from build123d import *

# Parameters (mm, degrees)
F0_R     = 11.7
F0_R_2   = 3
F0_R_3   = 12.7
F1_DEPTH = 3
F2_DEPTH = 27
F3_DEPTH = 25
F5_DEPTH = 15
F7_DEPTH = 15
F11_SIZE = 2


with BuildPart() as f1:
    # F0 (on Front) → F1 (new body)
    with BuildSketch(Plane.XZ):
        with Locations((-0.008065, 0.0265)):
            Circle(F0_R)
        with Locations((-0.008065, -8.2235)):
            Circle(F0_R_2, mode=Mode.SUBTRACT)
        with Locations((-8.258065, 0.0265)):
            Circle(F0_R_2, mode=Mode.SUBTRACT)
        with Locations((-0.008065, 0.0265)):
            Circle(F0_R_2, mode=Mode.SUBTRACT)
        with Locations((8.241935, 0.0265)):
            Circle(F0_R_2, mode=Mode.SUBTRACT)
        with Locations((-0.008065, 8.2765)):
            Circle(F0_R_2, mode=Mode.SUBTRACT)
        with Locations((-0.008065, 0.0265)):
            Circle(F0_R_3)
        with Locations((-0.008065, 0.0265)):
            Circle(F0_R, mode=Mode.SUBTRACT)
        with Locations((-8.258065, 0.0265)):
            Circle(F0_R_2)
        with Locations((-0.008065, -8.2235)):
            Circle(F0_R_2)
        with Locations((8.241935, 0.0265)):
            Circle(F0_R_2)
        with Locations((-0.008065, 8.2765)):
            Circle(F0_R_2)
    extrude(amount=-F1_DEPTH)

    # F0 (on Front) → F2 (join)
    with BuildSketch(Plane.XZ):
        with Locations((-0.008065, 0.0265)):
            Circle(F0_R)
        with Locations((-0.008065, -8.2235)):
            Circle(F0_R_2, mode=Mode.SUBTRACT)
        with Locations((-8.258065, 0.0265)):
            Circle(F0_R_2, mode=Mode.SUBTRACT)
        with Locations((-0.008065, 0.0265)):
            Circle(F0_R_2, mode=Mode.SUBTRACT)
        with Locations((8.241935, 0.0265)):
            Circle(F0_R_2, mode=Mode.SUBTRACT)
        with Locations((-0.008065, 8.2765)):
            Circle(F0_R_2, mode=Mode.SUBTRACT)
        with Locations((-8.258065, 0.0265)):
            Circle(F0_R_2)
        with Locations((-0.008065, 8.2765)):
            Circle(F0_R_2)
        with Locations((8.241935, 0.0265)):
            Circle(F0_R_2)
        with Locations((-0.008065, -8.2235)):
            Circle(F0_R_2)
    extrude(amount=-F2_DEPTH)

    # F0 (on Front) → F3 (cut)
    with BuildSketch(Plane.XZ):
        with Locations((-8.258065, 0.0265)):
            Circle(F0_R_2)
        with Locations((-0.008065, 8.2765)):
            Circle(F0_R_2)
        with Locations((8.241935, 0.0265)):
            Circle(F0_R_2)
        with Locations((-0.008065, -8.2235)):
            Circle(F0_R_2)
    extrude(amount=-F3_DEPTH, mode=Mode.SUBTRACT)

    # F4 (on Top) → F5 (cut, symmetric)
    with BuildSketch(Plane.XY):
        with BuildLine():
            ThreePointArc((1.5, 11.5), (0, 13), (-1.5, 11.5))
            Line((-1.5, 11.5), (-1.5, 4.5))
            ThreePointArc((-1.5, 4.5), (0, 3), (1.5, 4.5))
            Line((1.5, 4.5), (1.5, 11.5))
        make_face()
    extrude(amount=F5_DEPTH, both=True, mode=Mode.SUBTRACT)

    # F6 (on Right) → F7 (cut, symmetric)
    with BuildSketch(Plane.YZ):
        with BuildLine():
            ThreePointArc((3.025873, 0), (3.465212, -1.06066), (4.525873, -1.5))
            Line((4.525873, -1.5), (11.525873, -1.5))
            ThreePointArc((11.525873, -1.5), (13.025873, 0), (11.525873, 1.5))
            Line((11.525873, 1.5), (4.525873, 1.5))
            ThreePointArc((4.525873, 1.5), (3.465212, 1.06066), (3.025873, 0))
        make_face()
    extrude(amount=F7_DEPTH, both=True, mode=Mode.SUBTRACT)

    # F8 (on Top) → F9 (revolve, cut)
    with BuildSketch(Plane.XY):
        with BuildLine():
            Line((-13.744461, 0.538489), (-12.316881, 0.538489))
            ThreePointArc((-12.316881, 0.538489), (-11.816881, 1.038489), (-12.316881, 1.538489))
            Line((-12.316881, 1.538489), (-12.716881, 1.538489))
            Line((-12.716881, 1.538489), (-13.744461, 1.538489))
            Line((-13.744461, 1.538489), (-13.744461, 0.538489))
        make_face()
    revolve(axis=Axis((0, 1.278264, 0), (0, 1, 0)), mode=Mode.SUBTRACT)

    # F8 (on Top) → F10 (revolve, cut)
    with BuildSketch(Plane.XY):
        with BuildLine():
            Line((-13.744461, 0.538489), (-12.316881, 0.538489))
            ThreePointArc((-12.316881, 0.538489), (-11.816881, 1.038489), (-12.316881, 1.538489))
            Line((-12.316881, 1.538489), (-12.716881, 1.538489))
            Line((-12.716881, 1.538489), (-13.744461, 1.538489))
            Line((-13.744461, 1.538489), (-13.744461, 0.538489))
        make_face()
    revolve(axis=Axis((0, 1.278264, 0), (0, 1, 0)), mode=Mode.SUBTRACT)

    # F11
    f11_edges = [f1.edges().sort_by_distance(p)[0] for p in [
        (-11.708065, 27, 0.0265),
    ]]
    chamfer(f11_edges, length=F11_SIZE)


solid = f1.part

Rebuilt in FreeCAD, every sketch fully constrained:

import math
import FreeCAD as App
import Part
import Sketcher
from FreeCAD import Vector


def edges_at(feature, points):
    """Names of the edges that pass closest to the given points."""
    edges = feature.Shape.Edges
    near = lambda p: min(range(len(edges)), key=lambda i: edges[i].distToShape(Part.Vertex(*p))[0])
    return sorted({f"Edge{near(p) + 1}" for p in points})

doc = App.newDocument("Part")
body = doc.addObject("PartDesign::Body", "Body")
body.AllowCompound = True

sketch1 = doc.addObject("Sketcher::SketchObject", "Sketch")
body.addObject(sketch1)
sketch1.AttachmentSupport = (doc.XZ_Plane, [""])
sketch1.MapMode = "FlatFace"
sketch1.addGeometry(Part.Circle(Vector(0, 0, 0), Vector(0, 0, 1), 12.7), False)
sketch1.addGeometry(Part.Circle(Vector(0, 0, 0), Vector(0, 0, 1), 11.7), False)
sketch1.addGeometry(Part.Circle(Vector(-8.3, 0, 0), Vector(0, 0, 1), 3), False)
sketch1.addGeometry(Part.Circle(Vector(0, -8.2, 0), Vector(0, 0, 1), 3), False)
sketch1.addGeometry(Part.Circle(Vector(8.2, 0, 0), Vector(0, 0, 1), 3), False)
sketch1.addGeometry(Part.Circle(Vector(0, 8.3, 0), Vector(0, 0, 1), 3), False)
sketch1.addConstraint(Sketcher.Constraint("Coincident", 1, 3, 0, 3))
sketch1.addConstraint(Sketcher.Constraint("Equal", 2, 3))
sketch1.addConstraint(Sketcher.Constraint("Equal", 3, 4))
sketch1.addConstraint(Sketcher.Constraint("Equal", 4, 5))
sketch1.addConstraint(Sketcher.Constraint("Horizontal", 1, 3, 2, 3))
sketch1.addConstraint(Sketcher.Constraint("Horizontal", 2, 3, 4, 3))
sketch1.addConstraint(Sketcher.Constraint("Vertical", 1, 3, 3, 3))
sketch1.addConstraint(Sketcher.Constraint("Vertical", 3, 3, 5, 3))
sketch1.addConstraint(Sketcher.Constraint("Diameter", 2, 6.0))
sketch1.addConstraint(Sketcher.Constraint("Diameter", 0, 25.4))
sketch1.addConstraint(Sketcher.Constraint("Diameter", 1, 23.4))
sketch1.addConstraint(Sketcher.Constraint("DistanceX", 2, 3, 4, 3, 16.5))
sketch1.addConstraint(Sketcher.Constraint("DistanceY", 3, 3, 5, 3, 16.5))
sketch1.addConstraint(Sketcher.Constraint("DistanceX", 2, 3, 0, 3, 8.25))
sketch1.addConstraint(Sketcher.Constraint("DistanceY", 3, 3, 0, 3, 8.25))
sketch1.addConstraint(Sketcher.Constraint("DistanceY", -1, 1, 0, 3, 0.0265))
sketch1.addConstraint(Sketcher.Constraint("DistanceX", 0, 3, -1, 1, 0.008065))
pad1 = doc.addObject("PartDesign::Pad", "Pad")
body.addObject(pad1)
pad1.Profile = sketch1
pad1.Length = 3
pad1.Reversed = True

sketch2 = doc.addObject("Sketcher::SketchObject", "Sketch001")
body.addObject(sketch2)
sketch2.AttachmentSupport = (doc.XZ_Plane, [""])
sketch2.MapMode = "FlatFace"
sketch2.addGeometry(Part.Circle(Vector(0, 0, 0), Vector(0, 0, 1), 11.7), False)
sketch2.addGeometry(Part.Circle(Vector(0, 0, 0), Vector(0, 0, 1), 3), False)
sketch2.addConstraint(Sketcher.Constraint("Coincident", 1, 3, 0, 3))
sketch2.addConstraint(Sketcher.Constraint("Diameter", 1, 6.0))
sketch2.addConstraint(Sketcher.Constraint("Diameter", 0, 23.4))
sketch2.addConstraint(Sketcher.Constraint("DistanceY", -1, 1, 0, 3, 0.0265))
sketch2.addConstraint(Sketcher.Constraint("DistanceX", 0, 3, -1, 1, 0.008065))
pad2 = doc.addObject("PartDesign::Pad", "Pad001")
body.addObject(pad2)
pad2.Profile = sketch2
pad2.Length = 27
pad2.Reversed = True

sketch3 = doc.addObject("Sketcher::SketchObject", "Sketch002")
body.addObject(sketch3)
sketch3.AttachmentSupport = (doc.XZ_Plane, [""])
sketch3.MapMode = "FlatFace"
sketch3.addGeometry(Part.Circle(Vector(-8.3, 0, 0), Vector(0, 0, 1), 3), False)
sketch3.addGeometry(Part.Circle(Vector(0, 8.3, 0), Vector(0, 0, 1), 3), False)
sketch3.addGeometry(Part.Circle(Vector(8.2, 0, 0), Vector(0, 0, 1), 3), False)
sketch3.addGeometry(Part.Circle(Vector(0, -8.2, 0), Vector(0, 0, 1), 3), False)
sketch3.addConstraint(Sketcher.Constraint("Equal", 0, 1))
sketch3.addConstraint(Sketcher.Constraint("Equal", 1, 2))
sketch3.addConstraint(Sketcher.Constraint("Equal", 2, 3))
sketch3.addConstraint(Sketcher.Constraint("Horizontal", 0, 3, 2, 3))
sketch3.addConstraint(Sketcher.Constraint("Vertical", 1, 3, 3, 3))
sketch3.addConstraint(Sketcher.Constraint("Diameter", 0, 6.0))
sketch3.addConstraint(Sketcher.Constraint("DistanceX", 0, 3, 2, 3, 16.5))
sketch3.addConstraint(Sketcher.Constraint("DistanceY", 3, 3, 1, 3, 16.5))
sketch3.addConstraint(Sketcher.Constraint("DistanceX", 0, 3, 1, 3, 8.25))
sketch3.addConstraint(Sketcher.Constraint("DistanceY", 0, 3, 1, 3, 8.25))
sketch3.addConstraint(Sketcher.Constraint("DistanceY", -1, 1, 0, 3, 0.0265))
sketch3.addConstraint(Sketcher.Constraint("DistanceX", 0, 3, -1, 1, 8.258065))
pocket1 = doc.addObject("PartDesign::Pocket", "Pocket")
body.addObject(pocket1)
pocket1.Profile = sketch3
pocket1.Length = 25

sketch4 = doc.addObject("Sketcher::SketchObject", "Sketch003")
body.addObject(sketch4)
sketch4.AttachmentSupport = (doc.XY_Plane, [""])
sketch4.MapMode = "FlatFace"
sketch4.addGeometry(Part.ArcOfCircle(Part.Circle(Vector(0, 11.5, 0), Vector(0, 0, 1), 1.5), math.radians(0), math.radians(180)), False)
sketch4.addGeometry(Part.LineSegment(Vector(-1.5, 11.5, 0), Vector(-1.5, 4.5, 0)), False)
sketch4.addGeometry(Part.ArcOfCircle(Part.Circle(Vector(0, 4.5, 0), Vector(0, 0, 1), 1.5), math.radians(180), math.radians(360)), False)
sketch4.addGeometry(Part.LineSegment(Vector(1.5, 4.5, 0), Vector(1.5, 11.5, 0)), False)
sketch4.addConstraint(Sketcher.Constraint("Tangent", 0, 2, 1, 1))
sketch4.addConstraint(Sketcher.Constraint("Tangent", 1, 2, 2, 1))
sketch4.addConstraint(Sketcher.Constraint("Tangent", 2, 2, 3, 1))
sketch4.addConstraint(Sketcher.Constraint("Tangent", 3, 2, 0, 1))
sketch4.addConstraint(Sketcher.Constraint("Vertical", 1))
sketch4.addConstraint(Sketcher.Constraint("Vertical", 3))
sketch4.addConstraint(Sketcher.Constraint("PointOnObject", 0, 3, -2))
sketch4.addConstraint(Sketcher.Constraint("Radius", 0, 1.5))
sketch4.addConstraint(Sketcher.Constraint("DistanceY", 1, 2, 1, 1, 7.0))
sketch4.addConstraint(Sketcher.Constraint("DistanceY", -1, 1, 0, 3, 11.5))
pocket2 = doc.addObject("PartDesign::Pocket", "Pocket001")
body.addObject(pocket2)
pocket2.Profile = sketch4
pocket2.Length = 30
pocket2.Midplane = True

sketch5 = doc.addObject("Sketcher::SketchObject", "Sketch004")
body.addObject(sketch5)
sketch5.AttachmentSupport = (doc.YZ_Plane, [""])
sketch5.MapMode = "FlatFace"
sketch5.addGeometry(Part.ArcOfCircle(Part.Circle(Vector(4.5, 0, 0), Vector(0, 0, 1), 1.5), math.radians(180), math.radians(270)), False)
sketch5.addGeometry(Part.LineSegment(Vector(4.5, -1.5, 0), Vector(11.5, -1.5, 0)), False)
sketch5.addGeometry(Part.ArcOfCircle(Part.Circle(Vector(11.5, 0, 0), Vector(0, 0, 1), 1.5), math.radians(-90), math.radians(90)), False)
sketch5.addGeometry(Part.LineSegment(Vector(11.5, 1.5, 0), Vector(4.5, 1.5, 0)), False)
sketch5.addGeometry(Part.ArcOfCircle(Part.Circle(Vector(4.5, 0, 0), Vector(0, 0, 1), 1.5), math.radians(90), math.radians(180)), False)
sketch5.addConstraint(Sketcher.Constraint("Tangent", 0, 2, 1, 1))
sketch5.addConstraint(Sketcher.Constraint("Tangent", 1, 2, 2, 1))
sketch5.addConstraint(Sketcher.Constraint("Tangent", 2, 2, 3, 1))
sketch5.addConstraint(Sketcher.Constraint("Tangent", 3, 2, 4, 1))
sketch5.addConstraint(Sketcher.Constraint("Tangent", 4, 2, 0, 1))
sketch5.addConstraint(Sketcher.Constraint("Horizontal", 1))
sketch5.addConstraint(Sketcher.Constraint("Horizontal", 3))
sketch5.addConstraint(Sketcher.Constraint("Equal", 0, 2))
sketch5.addConstraint(Sketcher.Constraint("PointOnObject", 0, 3, -1))
sketch5.addConstraint(Sketcher.Constraint("PointOnObject", 4, 2, -1))
sketch5.addConstraint(Sketcher.Constraint("Radius", 0, 1.499999))
sketch5.addConstraint(Sketcher.Constraint("DistanceX", 1, 1, 1, 2, 7.0))
sketch5.addConstraint(Sketcher.Constraint("DistanceX", -1, 1, 0, 3, 4.525872))
pocket3 = doc.addObject("PartDesign::Pocket", "Pocket002")
body.addObject(pocket3)
pocket3.Profile = sketch5
pocket3.Length = 30
pocket3.Midplane = True

sketch6 = doc.addObject("Sketcher::SketchObject", "Sketch005")
body.addObject(sketch6)
sketch6.AttachmentSupport = (doc.XY_Plane, [""])
sketch6.MapMode = "FlatFace"
sketch6.addGeometry(Part.LineSegment(Vector(-13.7, 0.5, 0), Vector(-12.3, 0.5, 0)), False)
sketch6.addGeometry(Part.ArcOfCircle(Part.Circle(Vector(-12.3, 1, 0), Vector(0, 0, 1), 0.5), math.radians(-90), math.radians(90)), False)
sketch6.addGeometry(Part.LineSegment(Vector(-12.3, 1.5, 0), Vector(-13.7, 1.5, 0)), False)
sketch6.addGeometry(Part.LineSegment(Vector(-13.7, 1.5, 0), Vector(-13.7, 0.5, 0)), False)
sketch6.addConstraint(Sketcher.Constraint("Tangent", 0, 2, 1, 1))
sketch6.addConstraint(Sketcher.Constraint("Tangent", 1, 2, 2, 1))
sketch6.addConstraint(Sketcher.Constraint("Coincident", 2, 2, 3, 1))
sketch6.addConstraint(Sketcher.Constraint("Coincident", 3, 2, 0, 1))
sketch6.addConstraint(Sketcher.Constraint("Horizontal", 0))
sketch6.addConstraint(Sketcher.Constraint("Horizontal", 2))
sketch6.addConstraint(Sketcher.Constraint("Vertical", 3))
sketch6.addConstraint(Sketcher.Constraint("Radius", 1, 0.5))
sketch6.addConstraint(Sketcher.Constraint("DistanceX", 0, 1, 0, 2, 1.42758))
sketch6.addConstraint(Sketcher.Constraint("DistanceX", 1, 3, -1, 1, 12.316881))
sketch6.addConstraint(Sketcher.Constraint("DistanceY", -1, 1, 1, 3, 1.038489))
groove = doc.addObject("PartDesign::Groove", "Groove")
body.addObject(groove)
groove.Profile = sketch6
groove.ReferenceAxis = (sketch6, ["V_Axis"])
groove.Angle = 360

sketch7 = doc.addObject("Sketcher::SketchObject", "Sketch006")
body.addObject(sketch7)
sketch7.AttachmentSupport = (doc.XY_Plane, [""])
sketch7.MapMode = "FlatFace"
sketch7.addGeometry(Part.LineSegment(Vector(-13.7, 0.5, 0), Vector(-12.3, 0.5, 0)), False)
sketch7.addGeometry(Part.ArcOfCircle(Part.Circle(Vector(-12.3, 1, 0), Vector(0, 0, 1), 0.5), math.radians(-90), math.radians(90)), False)
sketch7.addGeometry(Part.LineSegment(Vector(-12.3, 1.5, 0), Vector(-13.7, 1.5, 0)), False)
sketch7.addGeometry(Part.LineSegment(Vector(-13.7, 1.5, 0), Vector(-13.7, 0.5, 0)), False)
sketch7.addConstraint(Sketcher.Constraint("Tangent", 0, 2, 1, 1))
sketch7.addConstraint(Sketcher.Constraint("Tangent", 1, 2, 2, 1))
sketch7.addConstraint(Sketcher.Constraint("Coincident", 2, 2, 3, 1))
sketch7.addConstraint(Sketcher.Constraint("Coincident", 3, 2, 0, 1))
sketch7.addConstraint(Sketcher.Constraint("Horizontal", 0))
sketch7.addConstraint(Sketcher.Constraint("Horizontal", 2))
sketch7.addConstraint(Sketcher.Constraint("Vertical", 3))
sketch7.addConstraint(Sketcher.Constraint("Radius", 1, 0.5))
sketch7.addConstraint(Sketcher.Constraint("DistanceX", 0, 1, 0, 2, 1.42758))
sketch7.addConstraint(Sketcher.Constraint("DistanceX", 1, 3, -1, 1, 12.316881))
sketch7.addConstraint(Sketcher.Constraint("DistanceY", -1, 1, 1, 3, 1.038489))
groove2 = doc.addObject("PartDesign::Groove", "Groove001")
body.addObject(groove2)
groove2.Profile = sketch7
groove2.ReferenceAxis = (sketch7, ["V_Axis"])
groove2.Angle = 360
doc.recompute()

chamfer = doc.addObject("PartDesign::Chamfer", "Chamfer")
body.addObject(chamfer)
chamfer.Base = (groove2, edges_at(groove2, [(-11.708, 27, 0.026)]))
chamfer.Size = 2

doc.recompute()
